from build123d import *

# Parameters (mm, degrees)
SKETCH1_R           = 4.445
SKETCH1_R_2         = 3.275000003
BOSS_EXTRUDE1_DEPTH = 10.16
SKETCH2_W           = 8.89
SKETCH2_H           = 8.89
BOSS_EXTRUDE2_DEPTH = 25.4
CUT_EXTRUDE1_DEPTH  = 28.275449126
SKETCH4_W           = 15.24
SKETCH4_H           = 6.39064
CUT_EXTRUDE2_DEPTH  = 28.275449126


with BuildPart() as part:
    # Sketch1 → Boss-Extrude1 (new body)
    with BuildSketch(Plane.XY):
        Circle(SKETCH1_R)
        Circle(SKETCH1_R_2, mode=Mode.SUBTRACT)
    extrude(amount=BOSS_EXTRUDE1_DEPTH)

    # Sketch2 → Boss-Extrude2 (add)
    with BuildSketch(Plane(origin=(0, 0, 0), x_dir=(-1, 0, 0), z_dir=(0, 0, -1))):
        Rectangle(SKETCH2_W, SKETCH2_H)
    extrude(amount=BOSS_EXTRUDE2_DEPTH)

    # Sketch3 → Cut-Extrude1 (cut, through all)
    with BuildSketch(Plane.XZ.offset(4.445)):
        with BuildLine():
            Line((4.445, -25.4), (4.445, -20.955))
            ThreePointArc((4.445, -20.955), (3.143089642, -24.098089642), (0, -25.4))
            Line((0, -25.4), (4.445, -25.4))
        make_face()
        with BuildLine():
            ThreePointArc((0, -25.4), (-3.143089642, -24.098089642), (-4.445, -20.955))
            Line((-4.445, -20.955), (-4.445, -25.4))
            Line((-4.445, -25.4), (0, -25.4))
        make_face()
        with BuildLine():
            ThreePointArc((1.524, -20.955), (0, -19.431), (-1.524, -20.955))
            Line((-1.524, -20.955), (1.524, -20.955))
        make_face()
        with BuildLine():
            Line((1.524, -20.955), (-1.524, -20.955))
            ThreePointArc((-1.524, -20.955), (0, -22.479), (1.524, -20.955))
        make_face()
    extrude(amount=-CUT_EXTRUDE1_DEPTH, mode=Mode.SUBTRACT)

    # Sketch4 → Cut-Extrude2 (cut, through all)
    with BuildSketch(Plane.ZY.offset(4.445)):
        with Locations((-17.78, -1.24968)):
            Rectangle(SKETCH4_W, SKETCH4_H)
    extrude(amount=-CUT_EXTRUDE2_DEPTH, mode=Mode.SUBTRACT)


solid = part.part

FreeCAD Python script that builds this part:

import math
import FreeCAD as App
import Part
import Sketcher
from FreeCAD import Vector
Q = App.Units.Quantity


def add_polygon(sketch, points):
    """Adds a closed chain of lines whose ends are joined by coincident constraints."""
    first, n = sketch.GeometryCount, len(points)
    for a, b in zip(points, points[1:] + points[:1]):
        sketch.addGeometry(Part.LineSegment(App.Vector(*a, 0), App.Vector(*b, 0)), False)
    for i in range(n):
        sketch.addConstraint(Sketcher.Constraint("Coincident", first + i, 2, first + (i + 1) % n, 1))

doc = App.newDocument("Part")
body = doc.addObject("PartDesign::Body", "Body")

# Sketch on XY plane
sketch1 = body.newObject("Sketcher::SketchObject", "Sketch")
sketch1.AttachmentSupport = (doc.getObject("XY_Plane"), [""])
sketch1.MapMode = "FlatFace"
sketch1.addGeometry([
    Part.Circle(Vector(0, 0, 0), Vector(0, 0, 1), 4.4),
    Part.Circle(Vector(0, 0, 0), Vector(0, 0, 1), 3.3),
], False)
sketch1.addConstraint([
    Sketcher.Constraint("Coincident", 0, 3, -1, 1),
    Sketcher.Constraint("Coincident", 1, 3, -1, 1),
    Sketcher.Constraint("Diameter", 0, Q("0.35 in")),
    Sketcher.Constraint("Diameter", 1, 6.55),
])
pad1 = body.newObject("PartDesign::Pad", "Pad")
pad1.Profile = sketch1
pad1.Length = Q("0.4 in")

# Sketch on XY plane
sketch2 = body.newObject("Sketcher::SketchObject", "Sketch001")
sketch2.AttachmentSupport = (doc.getObject("XY_Plane"), [""])
sketch2.MapMode = "FlatFace"
add_polygon(sketch2, [(4, 4), (4, -4), (-4, -4), (-4, 4)])  # lines 0-3
sketch2.addConstraint([
    Sketcher.Constraint("Vertical", 0),
    Sketcher.Constraint("Horizontal", 1),
    Sketcher.Constraint("Vertical", 2),
    Sketcher.Constraint("Horizontal", 3),
    Sketcher.Constraint("Symmetric", 0, 2, 2, 2, -1, 1),
    Sketcher.Constraint("Equal", 3, 0),
    Sketcher.Constraint("DistanceX", 1, 2, 1, 1, Q("0.35 in")),
])
pad2 = body.newObject("PartDesign::Pad", "Pad001")
pad2.Profile = sketch2
pad2.Length = Q("1 in")
pad2.Reversed = True

# Sketch on XZ plane
sketch3 = body.newObject("Sketcher::SketchObject", "Sketch002")
sketch3.AttachmentSupport = (doc.getObject("XZ_Plane"), [""])
sketch3.MapMode = "FlatFace"
sketch3.AttachmentOffset = App.Placement(Vector(0, 0, 0.175 * 25.4), App.Rotation())
sketch3.addGeometry([
    Part.LineSegment(Vector(4.4, -25.4, 0), Vector(4.4, -21, 0)),  # 0
    Part.ArcOfCircle(Part.Circle(Vector(0, -21, 0), Vector(0, 0, 1), 4.4), math.radians(-90), math.radians(0)),  # 1
    Part.LineSegment(Vector(0, -25.4, 0), Vector(4.4, -25.4, 0)),  # 2
    Part.ArcOfCircle(Part.Circle(Vector(0, -21, 0), Vector(0, 0, 1), 4.4), math.radians(-180), math.radians(-90)),  # 3
    Part.LineSegment(Vector(-4.4, -21, 0), Vector(-4.4, -25.4, 0)),  # 4
    Part.LineSegment(Vector(-4.4, -25.4, 0), Vector(0, -25.4, 0)),  # 5
    Part.Circle(Vector(0, -21, 0), Vector(0, 0, 1), 1.5),  # 6
], False)
sketch3.addConstraint([
    Sketcher.Constraint("Tangent", 0, 2, 1, 2),
    Sketcher.Constraint("Tangent", 1, 1, 2, 1),
    Sketcher.Constraint("Coincident", 2, 2, 0, 1),
    Sketcher.Constraint("Tangent", 3, 1, 4, 1),
    Sketcher.Constraint("Coincident", 4, 2, 5, 1),
    Sketcher.Constraint("Tangent", 5, 2, 3, 2),
    Sketcher.Constraint("Vertical", 0),
    Sketcher.Constraint("Horizontal", 2),
    Sketcher.Constraint("Vertical", 4),
    Sketcher.Constraint("Horizontal", 5),
    Sketcher.Constraint("Coincident", 3, 3, 1, 3),
    Sketcher.Constraint("Coincident", 6, 3, 1, 3),
    Sketcher.Constraint("Equal", 1, 3),
    Sketcher.Constraint("PointOnObject", 1, 3, -2),
    Sketcher.Constraint("Diameter", 6, Q("0.12 in")),
    Sketcher.Constraint("DistanceY", 1, 1, -1, 1, Q("1 in")),
    Sketcher.Constraint("Radius", 1, Q("0.175 in")),
])
pocket1 = body.newObject("PartDesign::Pocket", "Pocket")
pocket1.Profile = sketch3
pocket1.Type = "ThroughAll"

# Sketch on YZ plane
sketch4 = body.newObject("Sketcher::SketchObject", "Sketch003")
sketch4.AttachmentSupport = (doc.getObject("YZ_Plane"), [""])
sketch4.MapMode = "FlatFace"
sketch4.AttachmentOffset = App.Placement(Vector(0, 0, -0.175 * 25.4), App.Rotation())
add_polygon(sketch4, [(2, -25), (-4, -25), (-4, -10), (2, -10)])  # lines 0-3
sketch4.addConstraint([
    Sketcher.Constraint("Horizontal", 0),
    Sketcher.Constraint("Vertical", 1),
    Sketcher.Constraint("Horizontal", 2),
    Sketcher.Constraint("Vertical", 3),
    Sketcher.Constraint("DistanceY", 1, 1, 1, 2, Q("0.6 in")),
    Sketcher.Constraint("DistanceY", 0, 2, -1, 1, Q("1 in")),
    Sketcher.Constraint("DistanceX", 0, 2, 0, 1, Q("0.2516 in")),
    Sketcher.Constraint("DistanceX", 0, 2, -1, 1, Q("0.175 in")),
])
pocket2 = body.newObject("PartDesign::Pocket", "Pocket001")
pocket2.Profile = sketch4
pocket2.Type = "ThroughAll"
pocket2.Reversed = True

doc.recompute()
